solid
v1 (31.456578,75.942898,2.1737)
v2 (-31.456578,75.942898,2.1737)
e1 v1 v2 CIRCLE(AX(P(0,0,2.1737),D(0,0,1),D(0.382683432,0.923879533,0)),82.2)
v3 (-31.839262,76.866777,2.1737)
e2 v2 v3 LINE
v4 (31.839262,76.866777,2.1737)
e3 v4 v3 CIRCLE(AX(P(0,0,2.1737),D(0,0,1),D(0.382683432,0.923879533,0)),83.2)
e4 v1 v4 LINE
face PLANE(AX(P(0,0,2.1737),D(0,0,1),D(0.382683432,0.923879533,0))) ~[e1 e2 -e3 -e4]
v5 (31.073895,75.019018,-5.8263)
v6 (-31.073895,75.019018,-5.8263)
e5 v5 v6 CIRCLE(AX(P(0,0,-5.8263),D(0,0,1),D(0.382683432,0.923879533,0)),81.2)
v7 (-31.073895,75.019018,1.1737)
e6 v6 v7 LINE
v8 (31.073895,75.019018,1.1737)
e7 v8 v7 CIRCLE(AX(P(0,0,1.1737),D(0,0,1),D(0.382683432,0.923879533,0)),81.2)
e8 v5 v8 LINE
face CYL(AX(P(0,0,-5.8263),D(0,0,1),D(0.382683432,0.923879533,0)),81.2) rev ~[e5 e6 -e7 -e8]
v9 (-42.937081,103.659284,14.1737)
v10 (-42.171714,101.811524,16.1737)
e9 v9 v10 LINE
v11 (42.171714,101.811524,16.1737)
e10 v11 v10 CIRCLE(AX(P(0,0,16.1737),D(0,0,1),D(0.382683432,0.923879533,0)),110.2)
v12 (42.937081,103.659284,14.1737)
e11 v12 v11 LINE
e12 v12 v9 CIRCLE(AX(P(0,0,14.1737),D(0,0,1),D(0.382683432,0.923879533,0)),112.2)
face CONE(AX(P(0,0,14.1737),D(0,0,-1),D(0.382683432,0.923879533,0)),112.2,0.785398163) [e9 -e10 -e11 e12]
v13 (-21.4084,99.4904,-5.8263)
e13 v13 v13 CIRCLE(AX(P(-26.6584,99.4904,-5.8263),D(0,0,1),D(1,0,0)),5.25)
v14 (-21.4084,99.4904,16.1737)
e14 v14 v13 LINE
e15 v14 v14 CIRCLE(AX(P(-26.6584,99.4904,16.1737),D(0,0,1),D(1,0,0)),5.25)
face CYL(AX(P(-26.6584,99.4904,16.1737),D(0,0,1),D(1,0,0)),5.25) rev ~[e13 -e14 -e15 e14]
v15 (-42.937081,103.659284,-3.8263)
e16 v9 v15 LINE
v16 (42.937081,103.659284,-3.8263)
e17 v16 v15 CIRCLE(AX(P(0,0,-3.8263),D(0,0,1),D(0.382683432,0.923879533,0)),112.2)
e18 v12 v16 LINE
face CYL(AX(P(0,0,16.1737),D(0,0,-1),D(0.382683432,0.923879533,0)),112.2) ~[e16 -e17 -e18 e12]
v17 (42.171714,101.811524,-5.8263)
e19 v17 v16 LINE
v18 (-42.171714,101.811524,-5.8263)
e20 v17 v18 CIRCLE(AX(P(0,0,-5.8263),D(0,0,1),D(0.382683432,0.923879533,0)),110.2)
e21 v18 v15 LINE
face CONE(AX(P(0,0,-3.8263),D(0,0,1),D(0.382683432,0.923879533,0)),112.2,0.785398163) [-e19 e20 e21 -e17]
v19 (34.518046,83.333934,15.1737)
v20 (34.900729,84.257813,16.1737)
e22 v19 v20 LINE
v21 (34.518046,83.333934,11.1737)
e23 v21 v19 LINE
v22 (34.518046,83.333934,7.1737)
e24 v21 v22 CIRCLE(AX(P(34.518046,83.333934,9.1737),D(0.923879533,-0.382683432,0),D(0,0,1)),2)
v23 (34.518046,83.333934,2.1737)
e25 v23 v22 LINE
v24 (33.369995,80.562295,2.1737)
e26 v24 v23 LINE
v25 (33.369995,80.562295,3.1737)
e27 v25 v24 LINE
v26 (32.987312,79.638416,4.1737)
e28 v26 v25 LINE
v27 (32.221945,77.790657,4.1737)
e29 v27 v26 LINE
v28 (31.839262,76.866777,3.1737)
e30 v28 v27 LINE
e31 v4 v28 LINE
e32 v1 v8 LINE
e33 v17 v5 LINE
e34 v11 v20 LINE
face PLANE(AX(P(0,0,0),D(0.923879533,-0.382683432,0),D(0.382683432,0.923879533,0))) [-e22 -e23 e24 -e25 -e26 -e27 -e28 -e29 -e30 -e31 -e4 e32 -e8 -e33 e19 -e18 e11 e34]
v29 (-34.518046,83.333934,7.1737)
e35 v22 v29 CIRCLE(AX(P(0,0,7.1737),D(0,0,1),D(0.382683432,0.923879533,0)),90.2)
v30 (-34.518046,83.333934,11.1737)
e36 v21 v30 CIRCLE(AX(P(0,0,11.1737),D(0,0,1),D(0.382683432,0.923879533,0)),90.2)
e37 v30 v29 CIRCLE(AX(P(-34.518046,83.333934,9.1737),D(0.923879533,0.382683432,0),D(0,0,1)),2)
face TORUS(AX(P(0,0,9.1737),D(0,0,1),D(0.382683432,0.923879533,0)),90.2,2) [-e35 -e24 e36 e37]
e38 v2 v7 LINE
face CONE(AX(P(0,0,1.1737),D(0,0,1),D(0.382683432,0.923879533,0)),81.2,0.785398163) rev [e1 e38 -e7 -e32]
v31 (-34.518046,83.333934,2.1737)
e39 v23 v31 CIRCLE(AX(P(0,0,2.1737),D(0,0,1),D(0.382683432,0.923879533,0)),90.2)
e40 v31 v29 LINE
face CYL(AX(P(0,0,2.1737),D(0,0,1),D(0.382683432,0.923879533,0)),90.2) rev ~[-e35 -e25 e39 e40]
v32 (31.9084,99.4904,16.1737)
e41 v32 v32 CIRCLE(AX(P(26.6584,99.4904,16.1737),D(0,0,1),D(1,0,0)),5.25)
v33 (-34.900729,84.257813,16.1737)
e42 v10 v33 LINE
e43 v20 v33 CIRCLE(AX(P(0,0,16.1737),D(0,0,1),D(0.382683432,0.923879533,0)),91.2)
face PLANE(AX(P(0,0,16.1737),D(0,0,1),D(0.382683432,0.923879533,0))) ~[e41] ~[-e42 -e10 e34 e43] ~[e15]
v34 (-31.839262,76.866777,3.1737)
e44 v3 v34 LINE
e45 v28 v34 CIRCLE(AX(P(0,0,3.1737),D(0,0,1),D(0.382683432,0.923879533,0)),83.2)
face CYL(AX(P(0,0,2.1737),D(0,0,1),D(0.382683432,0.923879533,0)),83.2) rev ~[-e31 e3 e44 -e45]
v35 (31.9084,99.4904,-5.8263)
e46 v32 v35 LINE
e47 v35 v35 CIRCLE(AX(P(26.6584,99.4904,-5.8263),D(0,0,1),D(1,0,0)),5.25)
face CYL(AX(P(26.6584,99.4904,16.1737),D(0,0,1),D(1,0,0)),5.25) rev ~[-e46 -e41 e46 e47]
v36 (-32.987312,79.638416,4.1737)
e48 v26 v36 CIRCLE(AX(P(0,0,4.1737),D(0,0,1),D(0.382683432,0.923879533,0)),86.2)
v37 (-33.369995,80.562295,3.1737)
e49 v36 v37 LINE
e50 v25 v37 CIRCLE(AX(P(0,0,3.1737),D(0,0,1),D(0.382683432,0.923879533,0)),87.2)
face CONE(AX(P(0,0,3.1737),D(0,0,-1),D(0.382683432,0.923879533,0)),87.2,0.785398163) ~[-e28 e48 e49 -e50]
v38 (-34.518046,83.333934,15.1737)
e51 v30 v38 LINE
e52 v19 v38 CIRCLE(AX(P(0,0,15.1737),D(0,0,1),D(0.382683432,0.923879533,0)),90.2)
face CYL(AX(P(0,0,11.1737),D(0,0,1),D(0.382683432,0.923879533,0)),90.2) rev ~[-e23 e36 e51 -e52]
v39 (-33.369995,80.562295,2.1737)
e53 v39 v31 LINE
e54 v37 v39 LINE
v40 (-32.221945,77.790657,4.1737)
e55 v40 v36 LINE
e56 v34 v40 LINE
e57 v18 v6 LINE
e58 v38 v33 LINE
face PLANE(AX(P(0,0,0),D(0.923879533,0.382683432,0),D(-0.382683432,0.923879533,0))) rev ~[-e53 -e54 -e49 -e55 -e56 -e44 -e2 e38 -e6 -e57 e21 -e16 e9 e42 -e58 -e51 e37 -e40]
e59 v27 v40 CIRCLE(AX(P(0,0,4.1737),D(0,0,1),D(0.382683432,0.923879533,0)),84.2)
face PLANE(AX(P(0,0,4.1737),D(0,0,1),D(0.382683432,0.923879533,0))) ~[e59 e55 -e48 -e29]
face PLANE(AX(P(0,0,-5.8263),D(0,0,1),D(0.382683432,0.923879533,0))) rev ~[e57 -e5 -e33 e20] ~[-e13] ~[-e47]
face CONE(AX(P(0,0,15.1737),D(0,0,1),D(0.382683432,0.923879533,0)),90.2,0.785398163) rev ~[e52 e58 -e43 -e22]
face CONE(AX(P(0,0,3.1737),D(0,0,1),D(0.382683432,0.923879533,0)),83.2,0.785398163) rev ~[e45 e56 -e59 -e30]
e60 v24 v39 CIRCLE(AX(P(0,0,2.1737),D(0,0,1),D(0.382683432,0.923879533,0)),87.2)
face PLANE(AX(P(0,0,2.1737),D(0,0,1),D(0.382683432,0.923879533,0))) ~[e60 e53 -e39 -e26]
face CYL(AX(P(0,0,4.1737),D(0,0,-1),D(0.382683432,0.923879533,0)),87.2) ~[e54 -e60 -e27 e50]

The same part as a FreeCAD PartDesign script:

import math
import FreeCAD as App
import Part
import Sketcher

V = App.Vector


def edges_at(feature, points):
    """Names of the edges that pass closest to the given points."""
    edges = feature.Shape.Edges
    near = lambda p: min(range(len(edges)), key=lambda i: edges[i].distToShape(Part.Vertex(*p))[0])
    return sorted({f"Edge{near(p) + 1}" for p in points})

doc = App.newDocument("Part")
body = doc.addObject("PartDesign::Body", "Body")

# Sketch on YZ plane
sketch1 = body.newObject("Sketcher::SketchObject", "Sketch")
sketch1.AttachmentSupport = (doc.getObject("YZ_Plane"), [""])
sketch1.MapMode = "FlatFace"
sketch1.addGeometry([
    Part.LineSegment(V(83.2, 2.2, 0), V(81.2, 2.2, 0)),  # 0
    Part.LineSegment(V(81.2, 2.2, 0), V(81.2, -5.8, 0)),  # 1
    Part.LineSegment(V(81.2, -5.8, 0), V(112.2, -5.8, 0)),  # 2
    Part.LineSegment(V(112.2, -5.8, 0), V(112.2, 16.2, 0)),  # 3
    Part.LineSegment(V(112.2, 16.2, 0), V(90.2, 16.2, 0)),  # 4
    Part.LineSegment(V(90.2, 16.2, 0), V(90.2, 11.2, 0)),  # 5
    Part.ArcOfCircle(Part.Circle(V(90.2, 9.2, 0), V(0, 0, 1), 2), math.radians(90), math.radians(270)),  # 6
    Part.LineSegment(V(90.2, 7.2, 0), V(90.2, 2.2, 0)),  # 7
    Part.LineSegment(V(90.2, 2.2, 0), V(87.2, 2.2, 0)),  # 8
    Part.LineSegment(V(87.2, 2.2, 0), V(87.2, 4.2, 0)),  # 9
    Part.LineSegment(V(87.2, 4.2, 0), V(83.2, 4.2, 0)),  # 10
    Part.LineSegment(V(83.2, 4.2, 0), V(83.2, 2.2, 0)),  # 11
], False)
sketch1.addConstraint([
    Sketcher.Constraint("Coincident", 0, 2, 1, 1),
    Sketcher.Constraint("Coincident", 1, 2, 2, 1),
    Sketcher.Constraint("Coincident", 2, 2, 3, 1),
    Sketcher.Constraint("Coincident", 3, 2, 4, 1),
    Sketcher.Constraint("Coincident", 4, 2, 5, 1),
    Sketcher.Constraint("Coincident", 5, 2, 6, 1),
    Sketcher.Constraint("Coincident", 6, 2, 7, 1),
    Sketcher.Constraint("Coincident", 7, 2, 8, 1),
    Sketcher.Constraint("Coincident", 8, 2, 9, 1),
    Sketcher.Constraint("Coincident", 9, 2, 10, 1),
    Sketcher.Constraint("Coincident", 10, 2, 11, 1),
    Sketcher.Constraint("Coincident", 11, 2, 0, 1),
    Sketcher.Constraint("Horizontal", 0),
    Sketcher.Constraint("Vertical", 1),
    Sketcher.Constraint("Horizontal", 2),
    Sketcher.Constraint("Vertical", 3),
    Sketcher.Constraint("Horizontal", 4),
    Sketcher.Constraint("Vertical", 5),
    Sketcher.Constraint("Vertical", 7),
    Sketcher.Constraint("Horizontal", 8),
    Sketcher.Constraint("Vertical", 9),
    Sketcher.Constraint("Horizontal", 10),
    Sketcher.Constraint("Vertical", 11),
    Sketcher.Constraint("Horizontal", 0, 2, 7, 2),
    Sketcher.Constraint("Vertical", 6, 3, 4, 2),
    Sketcher.Constraint("Vertical", 5, 2, 6, 2),
    Sketcher.Constraint("Equal", 4, 3),
    Sketcher.Constraint("Equal", 5, 7),
    Sketcher.Constraint("Equal", 0, 9),
    Sketcher.Constraint("Radius", 6, 2.0),
    Sketcher.Constraint("DistanceX", 0, 2, 0, 1, 2.0),
    Sketcher.Constraint("DistanceX", 4, 2, 4, 1, 22.0),
    Sketcher.Constraint("DistanceX", 8, 2, 8, 1, 3.0),
    Sketcher.Constraint("DistanceX", 10, 2, 10, 1, 4.0),
    Sketcher.Constraint("DistanceY", 1, 2, 1, 1, 8.0),
    Sketcher.Constraint("DistanceX", -1, 1, 6, 3, 90.2),
    Sketcher.Constraint("DistanceY", -1, 1, 6, 3, 9.1737),
])
revolution = body.newObject("PartDesign::Revolution", "Revolution")
revolution.Profile = sketch1
revolution.ReferenceAxis = (sketch1, ["V_Axis"])
revolution.Angle = 45
revolution.Midplane = True
doc.recompute()

chamfer = body.newObject("PartDesign::Chamfer", "Chamfer")
chamfer.Base = (revolution, edges_at(revolution, [
    (0, 83.2, 4.174),
    (0, 87.2, 4.174),
    (0, 81.2, 2.174),
    (0, 90.2, 16.174),
]))
chamfer.Size = 1
doc.recompute()

chamfer2 = body.newObject("PartDesign::Chamfer", "Chamfer001")
chamfer2.Base = (chamfer, edges_at(chamfer, [(0, 112.2, -5.826), (0, 112.2, 16.174)]))
chamfer2.Size = 2

# Sketch on XY plane
sketch2 = body.newObject("Sketcher::SketchObject", "Sketch001")
sketch2.AttachmentSupport = (doc.getObject("XY_Plane"), [""])
sketch2.MapMode = "FlatFace"
sketch2.AttachmentOffset = App.Placement(V(0, 0, 16.1737), App.Rotation())
sketch2.addGeometry([
    Part.Circle(V(27, 99, 0), V(0, 0, 1), 5),
    Part.Circle(V(-27, 99, 0), V(0, 0, 1), 5),
], False)
sketch2.addConstraint([
    Sketcher.Constraint("Equal", 0, 1),
    Sketcher.Constraint("Symmetric", 0, 3, 1, 3, -2),
    Sketcher.Constraint("Diameter", 0, 10.5),
    Sketcher.Constraint("DistanceX", -1, 1, 0, 3, 26.6584),
    Sketcher.Constraint("DistanceY", -1, 1, 0, 3, 99.4904),
])
pocket1 = body.newObject("PartDesign::Pocket", "Pocket")
pocket1.Profile = sketch2
pocket1.Type = "ThroughAll"

doc.recompute()
